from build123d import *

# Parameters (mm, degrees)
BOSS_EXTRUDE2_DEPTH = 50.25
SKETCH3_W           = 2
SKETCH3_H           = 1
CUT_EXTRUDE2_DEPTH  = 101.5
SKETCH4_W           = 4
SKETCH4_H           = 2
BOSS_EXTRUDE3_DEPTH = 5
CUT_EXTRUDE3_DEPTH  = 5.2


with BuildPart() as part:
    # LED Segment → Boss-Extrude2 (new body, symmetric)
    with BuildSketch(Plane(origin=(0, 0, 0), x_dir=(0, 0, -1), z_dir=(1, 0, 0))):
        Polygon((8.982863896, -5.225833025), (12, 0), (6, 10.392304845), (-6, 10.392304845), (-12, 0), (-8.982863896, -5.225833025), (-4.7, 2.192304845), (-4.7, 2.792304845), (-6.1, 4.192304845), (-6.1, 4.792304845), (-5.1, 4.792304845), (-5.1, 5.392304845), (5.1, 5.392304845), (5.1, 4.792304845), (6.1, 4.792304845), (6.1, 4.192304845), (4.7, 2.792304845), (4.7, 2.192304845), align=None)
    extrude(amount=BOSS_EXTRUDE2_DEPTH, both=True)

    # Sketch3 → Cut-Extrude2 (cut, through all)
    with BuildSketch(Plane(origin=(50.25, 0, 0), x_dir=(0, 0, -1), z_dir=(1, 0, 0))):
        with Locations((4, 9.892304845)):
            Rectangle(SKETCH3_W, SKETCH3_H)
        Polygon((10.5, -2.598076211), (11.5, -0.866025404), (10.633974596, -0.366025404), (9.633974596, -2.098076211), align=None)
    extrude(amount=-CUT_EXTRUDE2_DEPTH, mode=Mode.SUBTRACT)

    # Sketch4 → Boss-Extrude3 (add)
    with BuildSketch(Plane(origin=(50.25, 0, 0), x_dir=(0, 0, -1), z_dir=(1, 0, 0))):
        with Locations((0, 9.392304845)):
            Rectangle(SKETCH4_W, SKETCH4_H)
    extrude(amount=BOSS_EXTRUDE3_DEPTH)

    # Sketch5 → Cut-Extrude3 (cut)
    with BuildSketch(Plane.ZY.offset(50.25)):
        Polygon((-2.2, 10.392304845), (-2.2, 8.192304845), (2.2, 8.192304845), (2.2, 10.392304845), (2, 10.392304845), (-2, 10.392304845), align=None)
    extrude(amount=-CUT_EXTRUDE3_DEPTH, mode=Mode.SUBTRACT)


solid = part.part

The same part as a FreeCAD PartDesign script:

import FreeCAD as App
import Part
import Sketcher
Q = App.Units.Quantity

doc = App.newDocument("Part")
body = doc.addObject("PartDesign::Body", "Body")

# Sketch on YZ plane
sketch1 = body.newObject("Sketcher::SketchObject", "Sketch")
sketch1.AttachmentSupport = (doc.getObject("YZ_Plane"), [""])
sketch1.MapMode = "FlatFace"
sketch1.addGeometry([
    Part.LineSegment(App.Vector(-5.2, -9, 0), App.Vector(0, -12, 0)),  # 0
    Part.LineSegment(App.Vector(0, -12, 0), App.Vector(10.4, -6, 0)),  # 1
    Part.LineSegment(App.Vector(10.4, -6, 0), App.Vector(10.4, 6, 0)),  # 2
    Part.LineSegment(App.Vector(10.4, 6, 0), App.Vector(0, 12, 0)),  # 3
    Part.LineSegment(App.Vector(0, 12, 0), App.Vector(-5.2, 9, 0)),  # 4
    Part.LineSegment(App.Vector(-5.2, 9, 0), App.Vector(2.2, 4.7, 0)),  # 5
    Part.LineSegment(App.Vector(2.2, 4.7, 0), App.Vector(2.8, 4.7, 0)),  # 6
    Part.LineSegment(App.Vector(2.8, 4.7, 0), App.Vector(4.2, 6.1, 0)),  # 7
    Part.LineSegment(App.Vector(4.2, 6.1, 0), App.Vector(4.8, 6.1, 0)),  # 8
    Part.LineSegment(App.Vector(4.8, 6.1, 0), App.Vector(4.8, 5.1, 0)),  # 9
    Part.LineSegment(App.Vector(4.8, 5.1, 0), App.Vector(5.4, 5.1, 0)),  # 10
    Part.LineSegment(App.Vector(5.4, 5.1, 0), App.Vector(5.4, -5.1, 0)),  # 11
    Part.LineSegment(App.Vector(5.4, -5.1, 0), App.Vector(4.8, -5.1, 0)),  # 12
    Part.LineSegment(App.Vector(4.8, -5.1, 0), App.Vector(4.8, -6.1, 0)),  # 13
    Part.LineSegment(App.Vector(4.8, -6.1, 0), App.Vector(4.2, -6.1, 0)),  # 14
    Part.LineSegment(App.Vector(4.2, -6.1, 0), App.Vector(2.8, -4.7, 0)),  # 15
    Part.LineSegment(App.Vector(2.8, -4.7, 0), App.Vector(2.2, -4.7, 0)),  # 16
    Part.LineSegment(App.Vector(2.2, -4.7, 0), App.Vector(-5.2, -9, 0)),  # 17
], False)
sketch1.addConstraint([
    Sketcher.Constraint("Coincident", 0, 2, 1, 1),
    Sketcher.Constraint("Coincident", 1, 2, 2, 1),
    Sketcher.Constraint("Coincident", 2, 2, 3, 1),
    Sketcher.Constraint("Coincident", 3, 2, 4, 1),
    Sketcher.Constraint("Coincident", 4, 2, 5, 1),
    Sketcher.Constraint("Coincident", 5, 2, 6, 1),
    Sketcher.Constraint("Coincident", 6, 2, 7, 1),
    Sketcher.Constraint("Coincident", 7, 2, 8, 1),
    Sketcher.Constraint("Coincident", 8, 2, 9, 1),
    Sketcher.Constraint("Coincident", 9, 2, 10, 1),
    Sketcher.Constraint("Coincident", 10, 2, 11, 1),
    Sketcher.Constraint("Coincident", 11, 2, 12, 1),
    Sketcher.Constraint("Coincident", 12, 2, 13, 1),
    Sketcher.Constraint("Coincident", 13, 2, 14, 1),
    Sketcher.Constraint("Coincident", 14, 2, 15, 1),
    Sketcher.Constraint("Coincident", 15, 2, 16, 1),
    Sketcher.Constraint("Coincident", 16, 2, 17, 1),
    Sketcher.Constraint("Coincident", 17, 2, 0, 1),
    Sketcher.Constraint("Vertical", 2),
    Sketcher.Constraint("Horizontal", 6),
    Sketcher.Constraint("Horizontal", 8),
    Sketcher.Constraint("Vertical", 9),
    Sketcher.Constraint("Horizontal", 10),
    Sketcher.Constraint("Vertical", 11),
    Sketcher.Constraint("Horizontal", 12),
    Sketcher.Constraint("Vertical", 13),
    Sketcher.Constraint("Horizontal", 14),
    Sketcher.Constraint("Horizontal", 16),
    Sketcher.Constraint("Symmetric", 0, 2, 3, 2, -1, 1),
    Sketcher.Constraint("Symmetric", 9, 2, 12, 2, -1),
    Sketcher.Constraint("Symmetric", 7, 2, 14, 2, -1),
    Sketcher.Constraint("Symmetric", 6, 2, 15, 2, -1),
    Sketcher.Constraint("Symmetric", 4, 2, 17, 2, -1),
    Sketcher.Constraint("PointOnObject", 0, 2, -2),
    Sketcher.Constraint("Parallel", 0, 3),
    Sketcher.Constraint("Parallel", 1, 4),
    Sketcher.Constraint("Parallel", 3, 5),
    Sketcher.Constraint("Perpendicular", 7, 15),
    Sketcher.Constraint("Parallel", 4, 17),
    Sketcher.Constraint("Equal", 6, 8),
    Sketcher.Constraint("Equal", 8, 10),
    Sketcher.Constraint("DistanceY", 2, 1, 2, 2, 12.0),
    Sketcher.Constraint("DistanceY", 9, 2, 9, 1, 1.0),
    Sketcher.Constraint("Angle", 0, Q("-30 deg")),
    Sketcher.Constraint("Distance", 1, 12.0),
    Sketcher.Constraint("DistanceX", 6, 1, 6, 2, 0.6),
    Sketcher.Constraint("DistanceY", 11, 2, 11, 1, 10.2),
    Sketcher.Constraint("DistanceX", 5, 2, 7, 2, 2.0),
    Sketcher.Constraint("DistanceX", 11, 2, 1, 2, 5.0),
])
pad1 = body.newObject("PartDesign::Pad", "Pad")
pad1.Profile = sketch1
pad1.Length = 100.5
pad1.Midplane = True

# Sketch on YZ plane
sketch2 = body.newObject("Sketcher::SketchObject", "Sketch001")
sketch2.AttachmentSupport = (doc.getObject("YZ_Plane"), [""])
sketch2.MapMode = "FlatFace"
sketch2.AttachmentOffset = App.Placement(App.Vector(0, 0, 50.25), App.Rotation())
sketch2.addGeometry([
    Part.LineSegment(App.Vector(10.4, -3, 0), App.Vector(9.4, -3, 0)),  # 0
    Part.LineSegment(App.Vector(9.4, -3, 0), App.Vector(9.4, -5, 0)),  # 1
    Part.LineSegment(App.Vector(9.4, -5, 0), App.Vector(10.4, -5, 0)),  # 2
    Part.LineSegment(App.Vector(10.4, -5, 0), App.Vector(10.4, -3, 0)),  # 3
    Part.LineSegment(App.Vector(-2.6, -10.5, 0), App.Vector(-0.9, -11.5, 0)),  # 4
    Part.LineSegment(App.Vector(-0.9, -11.5, 0), App.Vector(-0.4, -10.6, 0)),  # 5
    Part.LineSegment(App.Vector(-0.4, -10.6, 0), App.Vector(-2.1, -9.6, 0)),  # 6
    Part.LineSegment(App.Vector(-2.1, -9.6, 0), App.Vector(-2.6, -10.5, 0)),  # 7
], False)
sketch2.addConstraint([
    Sketcher.Constraint("Coincident", 0, 2, 1, 1),
    Sketcher.Constraint("Coincident", 1, 2, 2, 1),
    Sketcher.Constraint("Coincident", 2, 2, 3, 1),
    Sketcher.Constraint("Coincident", 3, 2, 0, 1),
    Sketcher.Constraint("Coincident", 4, 2, 5, 1),
    Sketcher.Constraint("Coincident", 5, 2, 6, 1),
    Sketcher.Constraint("Coincident", 6, 2, 7, 1),
    Sketcher.Constraint("Coincident", 7, 2, 4, 1),
    Sketcher.Constraint("Horizontal", 0),
    Sketcher.Constraint("Vertical", 1),
    Sketcher.Constraint("Horizontal", 2),
    Sketcher.Constraint("Vertical", 3),
    Sketcher.Constraint("Perpendicular", 4, 5),
    Sketcher.Constraint("Perpendicular", 5, 6),
    Sketcher.Constraint("Perpendicular", 6, 7),
    Sketcher.Constraint("DistanceX", 0, 2, 0, 1, 1.0),
    Sketcher.Constraint("DistanceY", 1, 2, 1, 1, 2.0),
    Sketcher.Constraint("Angle", 4, Q("-30 deg")),
    Sketcher.Constraint("Distance", 4, 2.0),
    Sketcher.Constraint("Distance", 5, 1.0),
    Sketcher.Constraint("DistanceY", 0, 2, -1, 1, 3.0),
    Sketcher.Constraint("DistanceY", 4, 2, -1, 1, 11.5),
    Sketcher.Constraint("DistanceX", 4, 2, 1, 2, 10.25833),
    Sketcher.Constraint("DistanceX", -1, 1, 0, 2, 9.392305),
])
pocket1 = body.newObject("PartDesign::Pocket", "Pocket")
pocket1.Profile = sketch2
pocket1.Type = "ThroughAll"

# Sketch on YZ plane
sketch3 = body.newObject("Sketcher::SketchObject", "Sketch002")
sketch3.AttachmentSupport = (doc.getObject("YZ_Plane"), [""])
sketch3.MapMode = "FlatFace"
sketch3.AttachmentOffset = App.Placement(App.Vector(0, 0, 50.25), App.Rotation())
sketch3.addGeometry([
    Part.LineSegment(App.Vector(10.4, 2, 0), App.Vector(8.4, 2, 0)),
    Part.LineSegment(App.Vector(8.4, 2, 0), App.Vector(8.4, -2, 0)),
    Part.LineSegment(App.Vector(8.4, -2, 0), App.Vector(10.4, -2, 0)),
    Part.LineSegment(App.Vector(10.4, -2, 0), App.Vector(10.4, 2, 0)),
], False)
sketch3.addConstraint([
    Sketcher.Constraint("Coincident", 0, 2, 1, 1),
    Sketcher.Constraint("Coincident", 1, 2, 2, 1),
    Sketcher.Constraint("Coincident", 2, 2, 3, 1),
    Sketcher.Constraint("Coincident", 3, 2, 0, 1),
    Sketcher.Constraint("Horizontal", 0),
    Sketcher.Constraint("Vertical", 1),
    Sketcher.Constraint("Horizontal", 2),
    Sketcher.Constraint("Vertical", 3),
    Sketcher.Constraint("DistanceX", 0, 2, 0, 1, 2.0),
    Sketcher.Constraint("DistanceY", 1, 2, 1, 1, 4.0),
    Sketcher.Constraint("DistanceY", -1, 1, 0, 2, 2.0),
    Sketcher.Constraint("DistanceX", -1, 1, 0, 2, 8.392305),
])
pad2 = body.newObject("PartDesign::Pad", "Pad001")
pad2.Profile = sketch3
pad2.Length = 5

# Sketch on YZ plane
sketch4 = body.newObject("Sketcher::SketchObject", "Sketch003")
sketch4.AttachmentSupport = (doc.getObject("YZ_Plane"), [""])
sketch4.MapMode = "FlatFace"
sketch4.AttachmentOffset = App.Placement(App.Vector(0, 0, -50.25), App.Rotation())
sketch4.addGeometry([
    Part.LineSegment(App.Vector(10.4, -2.2, 0), App.Vector(8.2, -2.2, 0)),
    Part.LineSegment(App.Vector(8.2, -2.2, 0), App.Vector(8.2, 2.2, 0)),
    Part.LineSegment(App.Vector(8.2, 2.2, 0), App.Vector(10.4, 2.2, 0)),
    Part.LineSegment(App.Vector(10.4, 2.2, 0), App.Vector(10.4, -2.2, 0)),
], False)
sketch4.addConstraint([
    Sketcher.Constraint("Coincident", 0, 2, 1, 1),
    Sketcher.Constraint("Coincident", 1, 2, 2, 1),
    Sketcher.Constraint("Coincident", 2, 2, 3, 1),
    Sketcher.Constraint("Coincident", 3, 2, 0, 1),
    Sketcher.Constraint("Horizontal", 0),
    Sketcher.Constraint("Vertical", 1),
    Sketcher.Constraint("Horizontal", 2),
    Sketcher.Constraint("Vertical", 3),
    Sketcher.Constraint("DistanceX", 0, 2, 0, 1, 2.2),
    Sketcher.Constraint("DistanceY", 1, 1, 1, 2, 4.4),
    Sketcher.Constraint("DistanceY", 0, 2, -1, 1, 2.2),
    Sketcher.Constraint("DistanceX", -1, 1, 0, 2, 8.192305),
])
pocket2 = body.newObject("PartDesign::Pocket", "Pocket001")
pocket2.Profile = sketch4
pocket2.Length = 5.2
pocket2.Reversed = True

doc.recompute()
